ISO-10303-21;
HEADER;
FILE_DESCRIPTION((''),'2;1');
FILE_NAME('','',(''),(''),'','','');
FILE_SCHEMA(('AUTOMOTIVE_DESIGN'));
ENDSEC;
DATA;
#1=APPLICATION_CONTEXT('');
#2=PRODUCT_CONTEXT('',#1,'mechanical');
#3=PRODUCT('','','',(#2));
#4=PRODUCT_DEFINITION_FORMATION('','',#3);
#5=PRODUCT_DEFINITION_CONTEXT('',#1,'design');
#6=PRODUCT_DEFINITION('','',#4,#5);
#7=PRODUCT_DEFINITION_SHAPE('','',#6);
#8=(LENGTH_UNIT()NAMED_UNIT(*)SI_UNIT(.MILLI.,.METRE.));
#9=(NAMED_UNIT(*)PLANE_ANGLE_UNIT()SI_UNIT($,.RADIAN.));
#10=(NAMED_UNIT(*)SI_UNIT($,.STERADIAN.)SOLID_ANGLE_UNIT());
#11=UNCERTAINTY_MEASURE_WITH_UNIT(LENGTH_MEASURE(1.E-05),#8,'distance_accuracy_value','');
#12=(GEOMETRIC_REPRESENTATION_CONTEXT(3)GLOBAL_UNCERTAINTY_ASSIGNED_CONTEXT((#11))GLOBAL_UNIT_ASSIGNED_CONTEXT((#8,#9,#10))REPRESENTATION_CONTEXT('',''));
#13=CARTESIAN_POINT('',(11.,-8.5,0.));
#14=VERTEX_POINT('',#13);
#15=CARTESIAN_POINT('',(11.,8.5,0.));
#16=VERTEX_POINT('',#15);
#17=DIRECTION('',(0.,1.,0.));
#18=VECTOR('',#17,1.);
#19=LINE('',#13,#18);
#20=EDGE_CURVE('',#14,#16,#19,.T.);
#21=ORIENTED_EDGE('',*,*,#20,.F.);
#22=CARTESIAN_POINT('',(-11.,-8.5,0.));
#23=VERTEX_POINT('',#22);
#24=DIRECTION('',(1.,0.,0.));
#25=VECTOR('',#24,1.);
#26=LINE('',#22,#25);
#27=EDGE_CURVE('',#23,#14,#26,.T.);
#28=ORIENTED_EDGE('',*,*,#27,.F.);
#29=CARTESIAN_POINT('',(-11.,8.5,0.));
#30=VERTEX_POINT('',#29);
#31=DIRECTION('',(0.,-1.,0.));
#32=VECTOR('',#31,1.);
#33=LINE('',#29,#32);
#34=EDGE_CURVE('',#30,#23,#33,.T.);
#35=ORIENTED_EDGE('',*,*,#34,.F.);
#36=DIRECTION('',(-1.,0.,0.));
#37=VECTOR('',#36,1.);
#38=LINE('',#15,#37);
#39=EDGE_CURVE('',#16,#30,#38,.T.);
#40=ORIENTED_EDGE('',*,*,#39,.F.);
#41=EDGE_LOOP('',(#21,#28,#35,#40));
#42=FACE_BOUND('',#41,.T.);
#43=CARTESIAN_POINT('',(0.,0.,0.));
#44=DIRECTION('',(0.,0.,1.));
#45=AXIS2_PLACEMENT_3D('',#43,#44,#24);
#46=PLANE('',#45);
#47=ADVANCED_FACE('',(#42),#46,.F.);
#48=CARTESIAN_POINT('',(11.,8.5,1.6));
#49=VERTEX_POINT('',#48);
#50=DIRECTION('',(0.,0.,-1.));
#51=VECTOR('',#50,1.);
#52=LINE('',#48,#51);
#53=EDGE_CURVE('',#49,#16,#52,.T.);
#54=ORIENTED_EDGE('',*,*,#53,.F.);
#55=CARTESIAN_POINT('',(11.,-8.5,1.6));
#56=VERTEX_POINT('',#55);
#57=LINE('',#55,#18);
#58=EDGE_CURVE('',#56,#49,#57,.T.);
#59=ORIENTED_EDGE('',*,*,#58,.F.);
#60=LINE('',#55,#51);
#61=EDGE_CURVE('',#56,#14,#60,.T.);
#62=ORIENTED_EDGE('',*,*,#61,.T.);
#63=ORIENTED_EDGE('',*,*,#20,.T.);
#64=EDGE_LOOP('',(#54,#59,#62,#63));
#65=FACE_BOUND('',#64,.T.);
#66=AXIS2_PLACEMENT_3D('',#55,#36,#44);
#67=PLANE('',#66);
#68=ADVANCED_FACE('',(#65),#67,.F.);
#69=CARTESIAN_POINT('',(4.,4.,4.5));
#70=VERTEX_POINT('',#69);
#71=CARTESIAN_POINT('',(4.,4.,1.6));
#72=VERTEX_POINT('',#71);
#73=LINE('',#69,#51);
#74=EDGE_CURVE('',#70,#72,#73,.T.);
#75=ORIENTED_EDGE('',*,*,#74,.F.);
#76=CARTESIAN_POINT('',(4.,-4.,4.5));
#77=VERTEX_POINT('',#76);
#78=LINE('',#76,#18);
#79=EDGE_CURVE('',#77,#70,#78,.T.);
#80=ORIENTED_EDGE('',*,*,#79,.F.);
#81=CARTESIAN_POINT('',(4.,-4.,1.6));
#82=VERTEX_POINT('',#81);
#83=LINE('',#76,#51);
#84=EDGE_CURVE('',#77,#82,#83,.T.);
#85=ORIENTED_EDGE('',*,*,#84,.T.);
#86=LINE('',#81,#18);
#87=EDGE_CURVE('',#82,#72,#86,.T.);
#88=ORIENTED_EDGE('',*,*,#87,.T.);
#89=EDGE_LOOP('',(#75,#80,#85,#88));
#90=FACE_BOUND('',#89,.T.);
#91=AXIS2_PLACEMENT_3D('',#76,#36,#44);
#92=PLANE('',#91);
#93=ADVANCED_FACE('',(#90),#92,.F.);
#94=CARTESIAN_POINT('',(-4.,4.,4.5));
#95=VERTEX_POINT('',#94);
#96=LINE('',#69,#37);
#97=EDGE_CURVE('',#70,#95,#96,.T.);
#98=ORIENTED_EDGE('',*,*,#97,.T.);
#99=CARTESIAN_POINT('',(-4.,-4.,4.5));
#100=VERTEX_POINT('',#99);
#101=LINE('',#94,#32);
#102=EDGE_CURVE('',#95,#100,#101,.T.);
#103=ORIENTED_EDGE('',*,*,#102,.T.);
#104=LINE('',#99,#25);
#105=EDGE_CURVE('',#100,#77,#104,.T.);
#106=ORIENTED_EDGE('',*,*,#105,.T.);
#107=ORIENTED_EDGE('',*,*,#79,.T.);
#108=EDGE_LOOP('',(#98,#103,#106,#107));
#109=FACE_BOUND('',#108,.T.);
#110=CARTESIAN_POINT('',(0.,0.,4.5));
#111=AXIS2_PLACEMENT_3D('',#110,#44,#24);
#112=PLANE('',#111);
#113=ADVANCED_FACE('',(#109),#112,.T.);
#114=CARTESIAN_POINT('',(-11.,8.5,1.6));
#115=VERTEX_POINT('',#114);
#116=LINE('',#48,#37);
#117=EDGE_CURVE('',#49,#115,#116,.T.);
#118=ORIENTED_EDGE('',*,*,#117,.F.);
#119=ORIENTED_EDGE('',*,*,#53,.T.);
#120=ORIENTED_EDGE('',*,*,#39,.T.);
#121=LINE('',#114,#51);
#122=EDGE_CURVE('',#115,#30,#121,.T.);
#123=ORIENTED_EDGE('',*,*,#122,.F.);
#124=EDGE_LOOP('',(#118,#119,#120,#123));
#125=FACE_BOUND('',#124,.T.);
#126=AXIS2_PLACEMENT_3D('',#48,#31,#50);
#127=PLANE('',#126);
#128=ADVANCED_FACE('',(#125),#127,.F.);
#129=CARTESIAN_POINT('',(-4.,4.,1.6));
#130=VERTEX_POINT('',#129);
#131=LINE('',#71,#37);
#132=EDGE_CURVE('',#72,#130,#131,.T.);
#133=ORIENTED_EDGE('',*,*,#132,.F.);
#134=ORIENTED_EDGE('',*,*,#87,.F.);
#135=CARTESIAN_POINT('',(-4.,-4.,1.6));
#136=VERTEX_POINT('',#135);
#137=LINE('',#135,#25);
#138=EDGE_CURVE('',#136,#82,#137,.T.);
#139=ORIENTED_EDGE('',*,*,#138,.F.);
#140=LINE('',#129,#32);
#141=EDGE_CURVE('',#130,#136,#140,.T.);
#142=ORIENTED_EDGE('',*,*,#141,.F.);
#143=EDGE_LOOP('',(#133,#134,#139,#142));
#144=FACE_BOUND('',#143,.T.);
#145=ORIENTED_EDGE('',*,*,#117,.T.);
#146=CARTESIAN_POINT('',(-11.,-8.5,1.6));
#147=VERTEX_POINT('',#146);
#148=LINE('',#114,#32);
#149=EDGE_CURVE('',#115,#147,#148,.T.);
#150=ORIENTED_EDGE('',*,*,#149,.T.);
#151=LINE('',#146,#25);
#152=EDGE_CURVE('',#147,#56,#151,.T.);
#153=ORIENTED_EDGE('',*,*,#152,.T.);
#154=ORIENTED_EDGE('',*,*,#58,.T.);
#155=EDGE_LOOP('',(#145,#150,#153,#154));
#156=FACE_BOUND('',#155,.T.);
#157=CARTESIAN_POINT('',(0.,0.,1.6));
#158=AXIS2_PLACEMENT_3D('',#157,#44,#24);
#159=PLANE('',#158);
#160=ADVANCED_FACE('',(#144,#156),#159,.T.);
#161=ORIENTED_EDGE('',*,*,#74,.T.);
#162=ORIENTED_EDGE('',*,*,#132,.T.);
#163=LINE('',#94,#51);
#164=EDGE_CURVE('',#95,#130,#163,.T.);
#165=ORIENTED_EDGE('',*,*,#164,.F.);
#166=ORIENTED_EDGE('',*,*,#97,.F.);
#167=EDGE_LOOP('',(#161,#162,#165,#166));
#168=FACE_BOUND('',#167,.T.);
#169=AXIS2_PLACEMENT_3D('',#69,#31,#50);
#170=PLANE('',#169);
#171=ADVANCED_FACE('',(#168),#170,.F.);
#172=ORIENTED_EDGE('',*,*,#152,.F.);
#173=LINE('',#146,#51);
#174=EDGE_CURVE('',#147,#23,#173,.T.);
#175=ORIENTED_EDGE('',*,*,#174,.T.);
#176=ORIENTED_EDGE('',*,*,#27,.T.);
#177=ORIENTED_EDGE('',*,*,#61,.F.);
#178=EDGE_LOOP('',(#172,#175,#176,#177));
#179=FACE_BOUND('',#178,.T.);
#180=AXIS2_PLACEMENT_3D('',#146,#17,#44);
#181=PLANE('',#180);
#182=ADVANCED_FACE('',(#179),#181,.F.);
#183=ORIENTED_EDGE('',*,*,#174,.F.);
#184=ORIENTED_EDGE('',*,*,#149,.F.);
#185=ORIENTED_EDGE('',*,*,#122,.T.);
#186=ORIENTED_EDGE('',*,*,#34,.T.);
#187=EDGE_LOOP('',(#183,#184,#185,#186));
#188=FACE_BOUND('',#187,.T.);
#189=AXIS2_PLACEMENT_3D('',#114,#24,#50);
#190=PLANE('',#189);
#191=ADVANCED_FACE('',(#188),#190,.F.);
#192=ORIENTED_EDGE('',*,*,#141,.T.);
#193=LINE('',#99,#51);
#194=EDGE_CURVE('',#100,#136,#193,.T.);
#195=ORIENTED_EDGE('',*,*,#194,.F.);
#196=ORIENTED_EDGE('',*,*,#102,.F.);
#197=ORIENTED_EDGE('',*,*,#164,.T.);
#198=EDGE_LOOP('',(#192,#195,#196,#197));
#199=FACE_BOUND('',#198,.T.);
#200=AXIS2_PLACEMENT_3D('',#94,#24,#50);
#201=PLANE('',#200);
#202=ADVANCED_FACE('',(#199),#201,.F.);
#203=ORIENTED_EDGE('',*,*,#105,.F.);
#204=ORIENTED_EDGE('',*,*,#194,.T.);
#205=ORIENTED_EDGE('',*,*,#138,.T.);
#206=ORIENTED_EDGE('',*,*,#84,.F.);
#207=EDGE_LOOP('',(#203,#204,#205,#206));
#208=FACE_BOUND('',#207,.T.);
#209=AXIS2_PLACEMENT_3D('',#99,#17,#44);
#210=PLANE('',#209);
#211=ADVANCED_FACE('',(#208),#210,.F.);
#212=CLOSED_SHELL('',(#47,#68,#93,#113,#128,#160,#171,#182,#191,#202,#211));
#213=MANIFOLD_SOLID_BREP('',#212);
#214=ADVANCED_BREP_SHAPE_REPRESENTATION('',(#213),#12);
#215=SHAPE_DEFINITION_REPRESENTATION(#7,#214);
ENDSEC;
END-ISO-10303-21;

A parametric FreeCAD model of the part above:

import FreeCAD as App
import Part
import Sketcher

V = App.Vector
Q = App.Units.Quantity


def add_polygon(sketch, points):
    """Adds a closed chain of lines whose ends are joined by coincident constraints."""
    first, n = sketch.GeometryCount, len(points)
    for a, b in zip(points, points[1:] + points[:1]):
        sketch.addGeometry(Part.LineSegment(App.Vector(*a, 0), App.Vector(*b, 0)), False)
    for i in range(n):
        sketch.addConstraint(Sketcher.Constraint("Coincident", first + i, 2, first + (i + 1) % n, 1))

doc = App.newDocument("Part")
params = doc.addObject("Spreadsheet::Sheet", "Params")
for row, (alias, value) in enumerate([
    ("sketch1_width", "22 mm"),
    ("sketch1_height", "17 mm"),
    ("pad1_length", "1.6 mm"),
    ("sketch2_width", "8 mm"),
    ("pad2_length", "2.9 mm"),
], start=1):
    params.set(f"A{row}", alias)
    params.set(f"B{row}", "=" + value)
    params.setAlias(f"B{row}", alias)

body = doc.addObject("PartDesign::Body", "Body")

sketch1 = body.newObject("Sketcher::SketchObject", "Sketch")
sketch1.AttachmentSupport = (doc.getObject("XY_Plane"), [""])
sketch1.MapMode = "FlatFace"
add_polygon(sketch1, [(-11, 8), (-11, -8), (11, -8), (11, 8)])
sketch1.addConstraint([
    Sketcher.Constraint("Vertical", 0),
    Sketcher.Constraint("Horizontal", 1),
    Sketcher.Constraint("Vertical", 2),
    Sketcher.Constraint("Horizontal", 3),
    Sketcher.Constraint("Symmetric", 0, 2, 2, 2, -1, 1),
    Sketcher.Constraint("DistanceX", 1, 1, 1, 2, Q("22 mm")),
    Sketcher.Constraint("DistanceY", 0, 2, 0, 1, Q("17 mm")),
])
sketch1.setExpression("Constraints[9]", "Params.sketch1_width")
sketch1.setExpression("Constraints[10]", "Params.sketch1_height")
pad1 = body.newObject("PartDesign::Pad", "Pad")
pad1.Profile = sketch1
pad1.setExpression("Length", "Params.pad1_length")

sketch2 = body.newObject("Sketcher::SketchObject", "Sketch001")
sketch2.AttachmentSupport = (doc.getObject("XY_Plane"), [""])
sketch2.MapMode = "FlatFace"
sketch2.AttachmentOffset = App.Placement(V(0, 0, 1.6), App.Rotation())
add_polygon(sketch2, [(-4, 4), (-4, -4), (4, -4), (4, 4)])
sketch2.addConstraint([
    Sketcher.Constraint("Vertical", 0),
    Sketcher.Constraint("Horizontal", 1),
    Sketcher.Constraint("Vertical", 2),
    Sketcher.Constraint("Horizontal", 3),
    Sketcher.Constraint("Symmetric", 0, 2, 2, 2, -1, 1),
    Sketcher.Constraint("Equal", 3, 0),
    Sketcher.Constraint("DistanceX", 1, 1, 1, 2, Q("8 mm")),
])
sketch2.setExpression("Constraints[10]", "Params.sketch2_width")
pad2 = body.newObject("PartDesign::Pad", "Pad001")
pad2.Profile = sketch2
pad2.setExpression("Length", "Params.pad2_length")

doc.recompute()
